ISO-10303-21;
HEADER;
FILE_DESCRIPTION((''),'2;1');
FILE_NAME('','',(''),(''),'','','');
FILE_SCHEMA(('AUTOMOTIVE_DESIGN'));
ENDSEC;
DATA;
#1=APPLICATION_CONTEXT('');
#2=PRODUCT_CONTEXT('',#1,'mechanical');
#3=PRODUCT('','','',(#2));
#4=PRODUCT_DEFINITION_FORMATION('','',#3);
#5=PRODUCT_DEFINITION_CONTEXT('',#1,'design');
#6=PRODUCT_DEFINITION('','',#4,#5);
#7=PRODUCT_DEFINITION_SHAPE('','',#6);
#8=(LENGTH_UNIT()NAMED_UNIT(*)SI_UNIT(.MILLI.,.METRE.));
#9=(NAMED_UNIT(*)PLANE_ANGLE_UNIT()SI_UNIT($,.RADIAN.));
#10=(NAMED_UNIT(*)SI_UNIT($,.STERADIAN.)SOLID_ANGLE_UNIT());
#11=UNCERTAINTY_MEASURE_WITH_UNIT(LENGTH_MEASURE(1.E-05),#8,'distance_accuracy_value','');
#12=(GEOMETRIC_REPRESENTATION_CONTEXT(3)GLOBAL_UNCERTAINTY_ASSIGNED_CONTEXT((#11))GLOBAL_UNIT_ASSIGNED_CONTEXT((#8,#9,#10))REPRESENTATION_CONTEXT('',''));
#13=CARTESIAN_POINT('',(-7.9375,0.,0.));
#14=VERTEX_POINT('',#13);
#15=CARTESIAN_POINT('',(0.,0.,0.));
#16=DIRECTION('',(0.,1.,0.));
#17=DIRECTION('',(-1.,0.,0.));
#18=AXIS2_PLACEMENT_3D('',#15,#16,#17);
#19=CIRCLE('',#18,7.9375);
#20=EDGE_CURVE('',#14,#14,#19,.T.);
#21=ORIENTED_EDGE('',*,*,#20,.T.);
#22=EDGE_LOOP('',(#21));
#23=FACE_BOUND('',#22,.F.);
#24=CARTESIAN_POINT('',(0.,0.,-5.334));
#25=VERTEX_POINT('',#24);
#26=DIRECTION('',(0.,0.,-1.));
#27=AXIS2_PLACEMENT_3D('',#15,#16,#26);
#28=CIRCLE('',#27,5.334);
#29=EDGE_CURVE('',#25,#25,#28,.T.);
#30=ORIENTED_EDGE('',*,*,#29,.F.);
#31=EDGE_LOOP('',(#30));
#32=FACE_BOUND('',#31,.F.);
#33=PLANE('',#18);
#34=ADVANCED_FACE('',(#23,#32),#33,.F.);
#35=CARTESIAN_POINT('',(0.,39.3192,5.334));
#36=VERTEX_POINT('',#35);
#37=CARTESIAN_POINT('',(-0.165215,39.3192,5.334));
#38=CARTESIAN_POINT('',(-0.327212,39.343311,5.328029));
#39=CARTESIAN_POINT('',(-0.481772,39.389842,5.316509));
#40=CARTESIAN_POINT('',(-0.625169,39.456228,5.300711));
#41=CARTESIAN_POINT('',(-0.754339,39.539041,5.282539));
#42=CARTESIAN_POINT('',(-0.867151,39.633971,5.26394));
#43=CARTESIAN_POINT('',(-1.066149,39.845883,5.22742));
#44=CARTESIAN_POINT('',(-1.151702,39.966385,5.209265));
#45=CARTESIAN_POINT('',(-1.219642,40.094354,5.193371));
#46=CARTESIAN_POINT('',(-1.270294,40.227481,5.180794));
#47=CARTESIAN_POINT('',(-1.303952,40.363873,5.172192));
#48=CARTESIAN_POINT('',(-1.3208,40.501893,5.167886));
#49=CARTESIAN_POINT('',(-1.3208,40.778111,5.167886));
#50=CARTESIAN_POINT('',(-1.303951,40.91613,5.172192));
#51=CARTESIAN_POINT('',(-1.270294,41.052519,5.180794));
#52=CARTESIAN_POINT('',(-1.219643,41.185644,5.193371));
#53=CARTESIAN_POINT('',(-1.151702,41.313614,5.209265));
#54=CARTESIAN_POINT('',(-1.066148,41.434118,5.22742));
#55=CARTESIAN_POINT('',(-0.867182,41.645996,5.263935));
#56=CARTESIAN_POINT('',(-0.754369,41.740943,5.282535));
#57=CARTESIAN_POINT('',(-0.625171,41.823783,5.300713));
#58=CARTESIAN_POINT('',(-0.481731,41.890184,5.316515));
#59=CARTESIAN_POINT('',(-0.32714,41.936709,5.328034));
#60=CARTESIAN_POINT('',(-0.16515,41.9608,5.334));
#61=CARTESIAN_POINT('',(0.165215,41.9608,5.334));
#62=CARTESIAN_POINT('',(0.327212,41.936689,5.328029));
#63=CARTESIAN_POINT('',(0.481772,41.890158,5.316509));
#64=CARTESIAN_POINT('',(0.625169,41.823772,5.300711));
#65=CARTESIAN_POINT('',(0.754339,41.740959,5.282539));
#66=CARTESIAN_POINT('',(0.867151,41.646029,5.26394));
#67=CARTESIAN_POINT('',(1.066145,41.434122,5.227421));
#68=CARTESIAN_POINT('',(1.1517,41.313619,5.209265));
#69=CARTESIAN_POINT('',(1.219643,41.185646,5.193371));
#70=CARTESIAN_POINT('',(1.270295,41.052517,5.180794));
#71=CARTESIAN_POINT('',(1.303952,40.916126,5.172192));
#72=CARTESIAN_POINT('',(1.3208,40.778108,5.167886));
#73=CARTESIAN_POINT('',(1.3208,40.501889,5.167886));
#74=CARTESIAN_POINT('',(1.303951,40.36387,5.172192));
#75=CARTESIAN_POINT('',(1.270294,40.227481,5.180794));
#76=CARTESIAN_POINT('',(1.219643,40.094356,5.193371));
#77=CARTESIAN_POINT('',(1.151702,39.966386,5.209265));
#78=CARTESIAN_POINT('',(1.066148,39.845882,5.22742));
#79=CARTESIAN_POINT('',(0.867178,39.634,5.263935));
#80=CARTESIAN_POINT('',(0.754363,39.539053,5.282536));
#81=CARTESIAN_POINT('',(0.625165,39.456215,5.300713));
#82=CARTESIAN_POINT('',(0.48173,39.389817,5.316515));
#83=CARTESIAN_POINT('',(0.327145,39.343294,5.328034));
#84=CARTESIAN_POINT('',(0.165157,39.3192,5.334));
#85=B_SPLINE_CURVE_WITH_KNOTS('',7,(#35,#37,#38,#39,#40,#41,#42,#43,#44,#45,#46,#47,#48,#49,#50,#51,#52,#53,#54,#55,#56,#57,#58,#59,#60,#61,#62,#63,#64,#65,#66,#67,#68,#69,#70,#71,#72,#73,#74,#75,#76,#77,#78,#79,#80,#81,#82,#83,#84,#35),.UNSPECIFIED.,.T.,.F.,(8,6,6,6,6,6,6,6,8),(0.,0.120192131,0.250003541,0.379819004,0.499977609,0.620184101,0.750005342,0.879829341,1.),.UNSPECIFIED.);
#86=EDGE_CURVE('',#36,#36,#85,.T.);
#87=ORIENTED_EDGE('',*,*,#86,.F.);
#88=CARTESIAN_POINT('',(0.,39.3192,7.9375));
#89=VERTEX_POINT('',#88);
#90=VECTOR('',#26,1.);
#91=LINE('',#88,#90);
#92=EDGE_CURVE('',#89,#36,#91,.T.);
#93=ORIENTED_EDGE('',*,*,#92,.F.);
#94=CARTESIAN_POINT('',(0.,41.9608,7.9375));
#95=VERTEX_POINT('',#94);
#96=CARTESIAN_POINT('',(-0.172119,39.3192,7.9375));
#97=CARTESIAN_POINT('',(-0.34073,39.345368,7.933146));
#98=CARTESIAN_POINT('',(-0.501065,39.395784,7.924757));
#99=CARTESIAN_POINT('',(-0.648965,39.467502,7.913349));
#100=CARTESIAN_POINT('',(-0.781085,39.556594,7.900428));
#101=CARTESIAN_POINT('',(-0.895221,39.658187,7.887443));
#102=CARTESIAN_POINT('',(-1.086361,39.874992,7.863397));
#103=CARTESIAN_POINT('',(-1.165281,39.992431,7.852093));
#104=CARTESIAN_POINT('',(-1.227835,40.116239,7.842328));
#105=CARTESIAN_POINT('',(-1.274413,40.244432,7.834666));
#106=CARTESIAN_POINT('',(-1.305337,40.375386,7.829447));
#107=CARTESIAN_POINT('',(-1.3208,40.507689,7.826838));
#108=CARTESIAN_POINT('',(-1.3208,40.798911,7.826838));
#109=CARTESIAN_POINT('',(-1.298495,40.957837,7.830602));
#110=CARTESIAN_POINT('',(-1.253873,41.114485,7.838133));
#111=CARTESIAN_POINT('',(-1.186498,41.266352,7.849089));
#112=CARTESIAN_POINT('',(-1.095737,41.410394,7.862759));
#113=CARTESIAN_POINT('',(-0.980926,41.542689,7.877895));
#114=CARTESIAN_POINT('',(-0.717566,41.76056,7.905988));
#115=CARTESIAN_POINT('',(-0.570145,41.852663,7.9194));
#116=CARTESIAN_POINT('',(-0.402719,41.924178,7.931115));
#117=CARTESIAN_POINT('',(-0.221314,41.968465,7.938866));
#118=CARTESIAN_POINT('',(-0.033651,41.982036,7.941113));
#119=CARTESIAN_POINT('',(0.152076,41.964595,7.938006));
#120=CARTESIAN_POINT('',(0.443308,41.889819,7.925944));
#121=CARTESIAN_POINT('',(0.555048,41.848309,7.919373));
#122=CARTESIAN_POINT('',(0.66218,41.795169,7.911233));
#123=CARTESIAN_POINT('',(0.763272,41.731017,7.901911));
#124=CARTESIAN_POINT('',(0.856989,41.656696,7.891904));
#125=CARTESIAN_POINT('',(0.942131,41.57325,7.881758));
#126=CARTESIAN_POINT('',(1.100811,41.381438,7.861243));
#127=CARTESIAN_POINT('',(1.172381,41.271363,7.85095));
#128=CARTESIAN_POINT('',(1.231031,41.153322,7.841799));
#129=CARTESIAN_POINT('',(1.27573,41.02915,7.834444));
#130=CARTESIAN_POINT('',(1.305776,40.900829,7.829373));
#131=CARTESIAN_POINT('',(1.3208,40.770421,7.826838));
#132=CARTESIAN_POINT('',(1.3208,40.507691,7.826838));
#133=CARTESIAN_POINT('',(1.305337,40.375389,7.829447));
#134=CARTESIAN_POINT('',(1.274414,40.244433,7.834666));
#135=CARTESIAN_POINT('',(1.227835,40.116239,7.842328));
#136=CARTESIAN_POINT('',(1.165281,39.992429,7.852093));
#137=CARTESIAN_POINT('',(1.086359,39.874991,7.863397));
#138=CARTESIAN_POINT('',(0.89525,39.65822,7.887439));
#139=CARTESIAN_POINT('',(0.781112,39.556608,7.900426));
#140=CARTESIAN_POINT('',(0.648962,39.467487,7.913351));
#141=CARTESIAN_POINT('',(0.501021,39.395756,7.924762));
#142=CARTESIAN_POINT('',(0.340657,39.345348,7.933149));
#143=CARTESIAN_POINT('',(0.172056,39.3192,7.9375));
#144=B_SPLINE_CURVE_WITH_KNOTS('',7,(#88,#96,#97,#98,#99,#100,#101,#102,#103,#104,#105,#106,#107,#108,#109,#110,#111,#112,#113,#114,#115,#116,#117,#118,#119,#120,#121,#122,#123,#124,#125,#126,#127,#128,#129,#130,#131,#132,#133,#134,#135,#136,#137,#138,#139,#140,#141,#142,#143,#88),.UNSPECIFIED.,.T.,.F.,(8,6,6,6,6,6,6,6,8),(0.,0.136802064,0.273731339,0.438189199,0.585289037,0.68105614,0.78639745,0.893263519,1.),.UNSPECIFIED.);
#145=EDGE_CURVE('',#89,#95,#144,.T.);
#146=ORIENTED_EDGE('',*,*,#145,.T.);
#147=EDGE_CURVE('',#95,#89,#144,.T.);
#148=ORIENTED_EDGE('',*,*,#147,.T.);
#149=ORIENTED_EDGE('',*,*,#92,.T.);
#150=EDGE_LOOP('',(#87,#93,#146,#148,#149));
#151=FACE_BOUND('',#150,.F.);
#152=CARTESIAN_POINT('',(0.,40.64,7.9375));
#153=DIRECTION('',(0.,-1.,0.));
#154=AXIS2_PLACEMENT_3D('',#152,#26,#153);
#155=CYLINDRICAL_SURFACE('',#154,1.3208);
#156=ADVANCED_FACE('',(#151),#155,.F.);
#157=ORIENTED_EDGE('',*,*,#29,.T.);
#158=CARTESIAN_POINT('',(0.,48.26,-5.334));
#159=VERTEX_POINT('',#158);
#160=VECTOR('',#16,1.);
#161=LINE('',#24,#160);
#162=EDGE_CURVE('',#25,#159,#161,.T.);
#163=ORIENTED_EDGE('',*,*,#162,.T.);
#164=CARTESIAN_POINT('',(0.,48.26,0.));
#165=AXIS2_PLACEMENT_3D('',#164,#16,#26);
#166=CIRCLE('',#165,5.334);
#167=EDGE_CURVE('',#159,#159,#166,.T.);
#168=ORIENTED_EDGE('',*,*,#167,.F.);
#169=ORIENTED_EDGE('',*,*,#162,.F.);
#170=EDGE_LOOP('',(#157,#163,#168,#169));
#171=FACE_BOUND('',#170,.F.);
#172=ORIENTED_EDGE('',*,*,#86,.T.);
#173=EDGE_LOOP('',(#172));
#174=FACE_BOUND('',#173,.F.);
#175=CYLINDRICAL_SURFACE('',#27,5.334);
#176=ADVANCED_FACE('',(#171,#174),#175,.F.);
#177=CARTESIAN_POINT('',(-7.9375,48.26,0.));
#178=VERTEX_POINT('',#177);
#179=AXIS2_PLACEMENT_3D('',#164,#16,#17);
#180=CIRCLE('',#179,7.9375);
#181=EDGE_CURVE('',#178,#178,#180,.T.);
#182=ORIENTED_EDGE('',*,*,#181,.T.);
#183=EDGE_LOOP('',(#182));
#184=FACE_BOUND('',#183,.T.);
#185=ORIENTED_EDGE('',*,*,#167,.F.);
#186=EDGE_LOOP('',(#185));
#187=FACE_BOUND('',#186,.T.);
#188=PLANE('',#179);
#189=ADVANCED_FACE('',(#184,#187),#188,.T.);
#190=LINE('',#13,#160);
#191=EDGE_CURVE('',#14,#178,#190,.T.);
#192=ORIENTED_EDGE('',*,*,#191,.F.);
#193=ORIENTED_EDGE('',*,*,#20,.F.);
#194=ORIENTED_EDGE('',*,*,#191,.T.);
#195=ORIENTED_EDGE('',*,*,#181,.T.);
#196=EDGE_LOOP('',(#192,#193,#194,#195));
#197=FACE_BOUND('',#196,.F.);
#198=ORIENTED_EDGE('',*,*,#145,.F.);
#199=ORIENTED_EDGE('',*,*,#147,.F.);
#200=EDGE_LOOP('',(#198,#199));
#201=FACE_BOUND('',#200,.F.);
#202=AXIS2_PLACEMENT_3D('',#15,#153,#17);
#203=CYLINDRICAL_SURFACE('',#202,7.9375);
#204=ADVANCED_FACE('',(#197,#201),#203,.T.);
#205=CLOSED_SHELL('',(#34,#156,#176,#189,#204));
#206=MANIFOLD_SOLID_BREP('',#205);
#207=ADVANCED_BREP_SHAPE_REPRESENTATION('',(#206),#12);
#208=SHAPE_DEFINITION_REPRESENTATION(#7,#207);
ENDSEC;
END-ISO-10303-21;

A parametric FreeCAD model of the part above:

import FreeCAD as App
import Part
import Sketcher
Q = App.Units.Quantity

doc = App.newDocument("Part")
body = doc.addObject("PartDesign::Body", "Body")

sketch1 = doc.addObject("Sketcher::SketchObject", "Sketch")
body.addObject(sketch1)
sketch1.AttachmentSupport = (doc.XZ_Plane, [""])
sketch1.MapMode = "FlatFace"
sketch1.addGeometry(Part.Circle(App.Vector(0, 0, 0), App.Vector(0, 0, 1), 8), False)
sketch1.addConstraint(Sketcher.Constraint("Coincident", 0, 3, -1, 1))
sketch1.addConstraint(Sketcher.Constraint("Diameter", 0, Q("0.625 in")))
pad1 = doc.addObject("PartDesign::Pad", "Pad")
body.addObject(pad1)
pad1.Profile = sketch1
pad1.Length = Q("1.9 in")
pad1.Reversed = True

sketch2 = doc.addObject("Sketcher::SketchObject", "Sketch001")
body.addObject(sketch2)
sketch2.AttachmentSupport = (doc.XZ_Plane, [""])
sketch2.MapMode = "FlatFace"
sketch2.addGeometry(Part.Circle(App.Vector(0, 0, 0), App.Vector(0, 0, 1), 5), False)
sketch2.addConstraint(Sketcher.Constraint("Coincident", 0, 3, -1, 1))
sketch2.addConstraint(Sketcher.Constraint("Diameter", 0, Q("0.42 in")))
doc.recompute()
hole = doc.addObject("PartDesign::Hole", "Hole")
body.addObject(hole)
hole.Profile = sketch2
hole.ThreadType = "None"
hole.Diameter = Q("0.42 in")
hole.DepthType = "ThroughAll"

sketch3 = doc.addObject("Sketcher::SketchObject", "Sketch002")
body.addObject(sketch3)
sketch3.AttachmentSupport = (doc.XY_Plane, [""])
sketch3.MapMode = "FlatFace"
sketch3.AttachmentOffset = App.Placement(App.Vector(0, 0, 0.3125 * 25.4), App.Rotation())
sketch3.addGeometry(Part.Circle(App.Vector(0, 40.6, 0), App.Vector(0, 0, 1), 1.3), False)
sketch3.addConstraint(Sketcher.Constraint("PointOnObject", 0, 3, -2))
sketch3.addConstraint(Sketcher.Constraint("Diameter", 0, Q("0.104 in")))
sketch3.addConstraint(Sketcher.Constraint("DistanceY", -1, 1, 0, 3, Q("1.6 in")))
doc.recompute()
hole2 = doc.addObject("PartDesign::Hole", "Hole001")
body.addObject(hole2)
hole2.Profile = sketch3
hole2.ThreadType = "None"
hole2.Diameter = Q("0.104 in")
hole2.DepthType = "Dimension"
hole2.Depth = Q("0.3 in")
hole2.DrillPoint = "Angled"
hole2.DrillPointAngle = 118

doc.recompute()
